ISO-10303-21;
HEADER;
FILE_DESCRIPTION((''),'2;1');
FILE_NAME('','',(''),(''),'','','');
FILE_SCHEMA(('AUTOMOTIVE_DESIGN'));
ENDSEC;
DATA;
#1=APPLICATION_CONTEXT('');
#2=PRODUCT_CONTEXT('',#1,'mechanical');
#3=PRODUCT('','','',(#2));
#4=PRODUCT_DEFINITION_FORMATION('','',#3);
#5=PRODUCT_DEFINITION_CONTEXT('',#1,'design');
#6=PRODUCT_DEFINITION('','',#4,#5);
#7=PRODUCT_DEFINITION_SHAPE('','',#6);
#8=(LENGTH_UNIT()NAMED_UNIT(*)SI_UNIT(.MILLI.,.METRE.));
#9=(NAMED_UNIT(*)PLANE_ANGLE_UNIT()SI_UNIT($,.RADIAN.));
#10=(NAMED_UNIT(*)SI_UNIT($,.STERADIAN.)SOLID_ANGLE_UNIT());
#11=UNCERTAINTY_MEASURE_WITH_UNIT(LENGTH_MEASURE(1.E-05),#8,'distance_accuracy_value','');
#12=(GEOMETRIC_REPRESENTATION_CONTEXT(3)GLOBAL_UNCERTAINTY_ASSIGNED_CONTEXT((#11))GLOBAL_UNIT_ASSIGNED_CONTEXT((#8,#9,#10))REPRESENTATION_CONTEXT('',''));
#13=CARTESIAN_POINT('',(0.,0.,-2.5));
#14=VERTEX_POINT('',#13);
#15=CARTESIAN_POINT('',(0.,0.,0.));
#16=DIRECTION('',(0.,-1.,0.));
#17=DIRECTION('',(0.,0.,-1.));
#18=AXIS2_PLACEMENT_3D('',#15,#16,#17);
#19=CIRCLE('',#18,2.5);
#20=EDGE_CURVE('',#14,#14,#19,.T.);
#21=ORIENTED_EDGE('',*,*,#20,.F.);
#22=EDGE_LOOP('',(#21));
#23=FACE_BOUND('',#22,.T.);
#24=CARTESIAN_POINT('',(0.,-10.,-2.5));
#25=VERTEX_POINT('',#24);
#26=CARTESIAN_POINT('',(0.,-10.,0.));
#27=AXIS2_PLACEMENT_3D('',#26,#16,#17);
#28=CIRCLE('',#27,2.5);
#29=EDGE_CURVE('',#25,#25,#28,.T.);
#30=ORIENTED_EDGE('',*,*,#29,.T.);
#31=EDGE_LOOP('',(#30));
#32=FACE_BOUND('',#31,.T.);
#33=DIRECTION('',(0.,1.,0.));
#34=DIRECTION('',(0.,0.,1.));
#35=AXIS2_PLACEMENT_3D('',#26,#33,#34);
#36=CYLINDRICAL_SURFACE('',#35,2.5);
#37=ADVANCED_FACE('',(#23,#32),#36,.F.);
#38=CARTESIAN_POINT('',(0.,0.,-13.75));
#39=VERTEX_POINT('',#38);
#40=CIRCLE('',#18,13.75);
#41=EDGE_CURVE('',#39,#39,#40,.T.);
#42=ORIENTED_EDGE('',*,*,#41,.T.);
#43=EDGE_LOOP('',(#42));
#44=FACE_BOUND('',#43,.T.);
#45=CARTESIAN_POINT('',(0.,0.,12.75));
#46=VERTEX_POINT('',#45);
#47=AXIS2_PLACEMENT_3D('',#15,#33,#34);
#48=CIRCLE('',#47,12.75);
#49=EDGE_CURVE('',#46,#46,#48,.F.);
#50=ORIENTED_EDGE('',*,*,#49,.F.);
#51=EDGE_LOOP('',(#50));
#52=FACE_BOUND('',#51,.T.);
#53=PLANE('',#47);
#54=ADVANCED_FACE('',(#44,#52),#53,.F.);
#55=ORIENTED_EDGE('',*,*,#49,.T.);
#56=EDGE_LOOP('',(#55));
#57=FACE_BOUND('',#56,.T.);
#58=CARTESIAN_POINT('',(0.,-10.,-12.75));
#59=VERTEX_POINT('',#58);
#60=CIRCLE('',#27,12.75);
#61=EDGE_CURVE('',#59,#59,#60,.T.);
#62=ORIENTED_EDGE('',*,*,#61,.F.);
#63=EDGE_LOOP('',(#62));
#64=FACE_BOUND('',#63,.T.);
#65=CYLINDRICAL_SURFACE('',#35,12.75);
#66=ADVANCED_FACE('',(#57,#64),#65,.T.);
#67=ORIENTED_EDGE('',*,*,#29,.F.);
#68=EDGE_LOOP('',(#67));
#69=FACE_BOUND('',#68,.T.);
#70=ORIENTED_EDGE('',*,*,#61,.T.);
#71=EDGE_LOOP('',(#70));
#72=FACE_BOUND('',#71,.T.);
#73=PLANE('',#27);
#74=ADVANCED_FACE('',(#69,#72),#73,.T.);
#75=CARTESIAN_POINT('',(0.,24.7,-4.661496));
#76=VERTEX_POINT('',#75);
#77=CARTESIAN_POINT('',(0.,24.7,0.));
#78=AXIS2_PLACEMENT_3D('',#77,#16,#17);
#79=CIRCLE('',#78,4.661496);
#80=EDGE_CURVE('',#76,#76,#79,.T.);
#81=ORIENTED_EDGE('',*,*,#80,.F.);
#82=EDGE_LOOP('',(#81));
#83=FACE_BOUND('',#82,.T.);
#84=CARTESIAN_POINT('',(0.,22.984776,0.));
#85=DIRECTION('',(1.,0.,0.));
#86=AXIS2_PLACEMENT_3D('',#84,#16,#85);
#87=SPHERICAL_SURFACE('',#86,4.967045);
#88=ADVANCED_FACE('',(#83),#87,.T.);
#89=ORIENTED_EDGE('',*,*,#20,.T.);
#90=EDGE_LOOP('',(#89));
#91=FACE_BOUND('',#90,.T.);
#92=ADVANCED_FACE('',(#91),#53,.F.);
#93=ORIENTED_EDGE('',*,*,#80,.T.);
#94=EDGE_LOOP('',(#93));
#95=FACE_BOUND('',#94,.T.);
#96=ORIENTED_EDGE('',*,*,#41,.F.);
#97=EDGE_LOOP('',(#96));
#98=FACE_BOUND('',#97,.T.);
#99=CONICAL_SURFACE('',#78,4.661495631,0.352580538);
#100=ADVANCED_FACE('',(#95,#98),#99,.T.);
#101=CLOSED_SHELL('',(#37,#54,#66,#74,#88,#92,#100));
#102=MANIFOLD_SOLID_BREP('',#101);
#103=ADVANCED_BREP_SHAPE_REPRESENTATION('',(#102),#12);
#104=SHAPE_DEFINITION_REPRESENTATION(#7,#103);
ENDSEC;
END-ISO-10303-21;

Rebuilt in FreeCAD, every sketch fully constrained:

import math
import FreeCAD as App
import Part
import Sketcher

doc = App.newDocument("Part")
body = doc.addObject("PartDesign::Body", "Body")

# Sketch on XY plane
sketch1 = doc.addObject("Sketcher::SketchObject", "Sketch")
body.addObject(sketch1)
sketch1.AttachmentSupport = (doc.XY_Plane, [""])
sketch1.MapMode = "FlatFace"
sketch1.addGeometry(Part.LineSegment(App.Vector(-13.75, 0, 0), App.Vector(0, 0, 0)), False)
sketch1.addGeometry(Part.LineSegment(App.Vector(0, 0, 0), App.Vector(0, 27.951821, 0)), False)
sketch1.addGeometry(Part.ArcOfCircle(Part.Circle(App.Vector(0, 22.984776, 0), App.Vector(0, 0, 1), 4.967045), math.radians(90), math.radians(159.798623)), False)
sketch1.addGeometry(Part.LineSegment(App.Vector(-4.661496, 24.7, 0), App.Vector(-13.75, 0, 0)), False)
sketch1.addConstraint(Sketcher.Constraint("Coincident", 0, 2, 1, 1))
sketch1.addConstraint(Sketcher.Constraint("Coincident", 1, 2, 2, 1))
sketch1.addConstraint(Sketcher.Constraint("Tangent", 2, 2, 3, 1))
sketch1.addConstraint(Sketcher.Constraint("Coincident", 3, 2, 0, 1))
sketch1.addConstraint(Sketcher.Constraint("Horizontal", 0))
sketch1.addConstraint(Sketcher.Constraint("Vertical", 1))
sketch1.addConstraint(Sketcher.Constraint("Coincident", 0, 2, -1, 1))
sketch1.addConstraint(Sketcher.Constraint("PointOnObject", 2, 3, -2))
sketch1.addConstraint(Sketcher.Constraint("DistanceX", 0, 1, 0, 2, 13.75))
sketch1.addConstraint(Sketcher.Constraint("DistanceY", -1, 1, 2, 2, 24.7))
sketch1.addConstraint(Sketcher.Constraint("Radius", 2, 4.967045))
revolution = doc.addObject("PartDesign::Revolution", "Revolution")
body.addObject(revolution)
revolution.Profile = sketch1
revolution.ReferenceAxis = (sketch1, ["V_Axis"])
revolution.Angle = 360

# Sketch on XZ plane
sketch2 = doc.addObject("Sketcher::SketchObject", "Sketch001")
body.addObject(sketch2)
sketch2.AttachmentSupport = (doc.XZ_Plane, [""])
sketch2.MapMode = "FlatFace"
sketch2.addGeometry(Part.Circle(App.Vector(0, 0, 0), App.Vector(0, 0, 1), 12.75), False)
sketch2.addGeometry(Part.Circle(App.Vector(0, 0, 0), App.Vector(0, 0, 1), 2.5), False)
sketch2.addConstraint(Sketcher.Constraint("Coincident", 0, 3, -1, 1))
sketch2.addConstraint(Sketcher.Constraint("Coincident", 1, 3, -1, 1))
sketch2.addConstraint(Sketcher.Constraint("Diameter", 1, 5.0))
sketch2.addConstraint(Sketcher.Constraint("Diameter", 0, 25.5))
pad1 = doc.addObject("PartDesign::Pad", "Pad")
body.addObject(pad1)
pad1.Profile = sketch2
pad1.Length = 10

doc.recompute()
